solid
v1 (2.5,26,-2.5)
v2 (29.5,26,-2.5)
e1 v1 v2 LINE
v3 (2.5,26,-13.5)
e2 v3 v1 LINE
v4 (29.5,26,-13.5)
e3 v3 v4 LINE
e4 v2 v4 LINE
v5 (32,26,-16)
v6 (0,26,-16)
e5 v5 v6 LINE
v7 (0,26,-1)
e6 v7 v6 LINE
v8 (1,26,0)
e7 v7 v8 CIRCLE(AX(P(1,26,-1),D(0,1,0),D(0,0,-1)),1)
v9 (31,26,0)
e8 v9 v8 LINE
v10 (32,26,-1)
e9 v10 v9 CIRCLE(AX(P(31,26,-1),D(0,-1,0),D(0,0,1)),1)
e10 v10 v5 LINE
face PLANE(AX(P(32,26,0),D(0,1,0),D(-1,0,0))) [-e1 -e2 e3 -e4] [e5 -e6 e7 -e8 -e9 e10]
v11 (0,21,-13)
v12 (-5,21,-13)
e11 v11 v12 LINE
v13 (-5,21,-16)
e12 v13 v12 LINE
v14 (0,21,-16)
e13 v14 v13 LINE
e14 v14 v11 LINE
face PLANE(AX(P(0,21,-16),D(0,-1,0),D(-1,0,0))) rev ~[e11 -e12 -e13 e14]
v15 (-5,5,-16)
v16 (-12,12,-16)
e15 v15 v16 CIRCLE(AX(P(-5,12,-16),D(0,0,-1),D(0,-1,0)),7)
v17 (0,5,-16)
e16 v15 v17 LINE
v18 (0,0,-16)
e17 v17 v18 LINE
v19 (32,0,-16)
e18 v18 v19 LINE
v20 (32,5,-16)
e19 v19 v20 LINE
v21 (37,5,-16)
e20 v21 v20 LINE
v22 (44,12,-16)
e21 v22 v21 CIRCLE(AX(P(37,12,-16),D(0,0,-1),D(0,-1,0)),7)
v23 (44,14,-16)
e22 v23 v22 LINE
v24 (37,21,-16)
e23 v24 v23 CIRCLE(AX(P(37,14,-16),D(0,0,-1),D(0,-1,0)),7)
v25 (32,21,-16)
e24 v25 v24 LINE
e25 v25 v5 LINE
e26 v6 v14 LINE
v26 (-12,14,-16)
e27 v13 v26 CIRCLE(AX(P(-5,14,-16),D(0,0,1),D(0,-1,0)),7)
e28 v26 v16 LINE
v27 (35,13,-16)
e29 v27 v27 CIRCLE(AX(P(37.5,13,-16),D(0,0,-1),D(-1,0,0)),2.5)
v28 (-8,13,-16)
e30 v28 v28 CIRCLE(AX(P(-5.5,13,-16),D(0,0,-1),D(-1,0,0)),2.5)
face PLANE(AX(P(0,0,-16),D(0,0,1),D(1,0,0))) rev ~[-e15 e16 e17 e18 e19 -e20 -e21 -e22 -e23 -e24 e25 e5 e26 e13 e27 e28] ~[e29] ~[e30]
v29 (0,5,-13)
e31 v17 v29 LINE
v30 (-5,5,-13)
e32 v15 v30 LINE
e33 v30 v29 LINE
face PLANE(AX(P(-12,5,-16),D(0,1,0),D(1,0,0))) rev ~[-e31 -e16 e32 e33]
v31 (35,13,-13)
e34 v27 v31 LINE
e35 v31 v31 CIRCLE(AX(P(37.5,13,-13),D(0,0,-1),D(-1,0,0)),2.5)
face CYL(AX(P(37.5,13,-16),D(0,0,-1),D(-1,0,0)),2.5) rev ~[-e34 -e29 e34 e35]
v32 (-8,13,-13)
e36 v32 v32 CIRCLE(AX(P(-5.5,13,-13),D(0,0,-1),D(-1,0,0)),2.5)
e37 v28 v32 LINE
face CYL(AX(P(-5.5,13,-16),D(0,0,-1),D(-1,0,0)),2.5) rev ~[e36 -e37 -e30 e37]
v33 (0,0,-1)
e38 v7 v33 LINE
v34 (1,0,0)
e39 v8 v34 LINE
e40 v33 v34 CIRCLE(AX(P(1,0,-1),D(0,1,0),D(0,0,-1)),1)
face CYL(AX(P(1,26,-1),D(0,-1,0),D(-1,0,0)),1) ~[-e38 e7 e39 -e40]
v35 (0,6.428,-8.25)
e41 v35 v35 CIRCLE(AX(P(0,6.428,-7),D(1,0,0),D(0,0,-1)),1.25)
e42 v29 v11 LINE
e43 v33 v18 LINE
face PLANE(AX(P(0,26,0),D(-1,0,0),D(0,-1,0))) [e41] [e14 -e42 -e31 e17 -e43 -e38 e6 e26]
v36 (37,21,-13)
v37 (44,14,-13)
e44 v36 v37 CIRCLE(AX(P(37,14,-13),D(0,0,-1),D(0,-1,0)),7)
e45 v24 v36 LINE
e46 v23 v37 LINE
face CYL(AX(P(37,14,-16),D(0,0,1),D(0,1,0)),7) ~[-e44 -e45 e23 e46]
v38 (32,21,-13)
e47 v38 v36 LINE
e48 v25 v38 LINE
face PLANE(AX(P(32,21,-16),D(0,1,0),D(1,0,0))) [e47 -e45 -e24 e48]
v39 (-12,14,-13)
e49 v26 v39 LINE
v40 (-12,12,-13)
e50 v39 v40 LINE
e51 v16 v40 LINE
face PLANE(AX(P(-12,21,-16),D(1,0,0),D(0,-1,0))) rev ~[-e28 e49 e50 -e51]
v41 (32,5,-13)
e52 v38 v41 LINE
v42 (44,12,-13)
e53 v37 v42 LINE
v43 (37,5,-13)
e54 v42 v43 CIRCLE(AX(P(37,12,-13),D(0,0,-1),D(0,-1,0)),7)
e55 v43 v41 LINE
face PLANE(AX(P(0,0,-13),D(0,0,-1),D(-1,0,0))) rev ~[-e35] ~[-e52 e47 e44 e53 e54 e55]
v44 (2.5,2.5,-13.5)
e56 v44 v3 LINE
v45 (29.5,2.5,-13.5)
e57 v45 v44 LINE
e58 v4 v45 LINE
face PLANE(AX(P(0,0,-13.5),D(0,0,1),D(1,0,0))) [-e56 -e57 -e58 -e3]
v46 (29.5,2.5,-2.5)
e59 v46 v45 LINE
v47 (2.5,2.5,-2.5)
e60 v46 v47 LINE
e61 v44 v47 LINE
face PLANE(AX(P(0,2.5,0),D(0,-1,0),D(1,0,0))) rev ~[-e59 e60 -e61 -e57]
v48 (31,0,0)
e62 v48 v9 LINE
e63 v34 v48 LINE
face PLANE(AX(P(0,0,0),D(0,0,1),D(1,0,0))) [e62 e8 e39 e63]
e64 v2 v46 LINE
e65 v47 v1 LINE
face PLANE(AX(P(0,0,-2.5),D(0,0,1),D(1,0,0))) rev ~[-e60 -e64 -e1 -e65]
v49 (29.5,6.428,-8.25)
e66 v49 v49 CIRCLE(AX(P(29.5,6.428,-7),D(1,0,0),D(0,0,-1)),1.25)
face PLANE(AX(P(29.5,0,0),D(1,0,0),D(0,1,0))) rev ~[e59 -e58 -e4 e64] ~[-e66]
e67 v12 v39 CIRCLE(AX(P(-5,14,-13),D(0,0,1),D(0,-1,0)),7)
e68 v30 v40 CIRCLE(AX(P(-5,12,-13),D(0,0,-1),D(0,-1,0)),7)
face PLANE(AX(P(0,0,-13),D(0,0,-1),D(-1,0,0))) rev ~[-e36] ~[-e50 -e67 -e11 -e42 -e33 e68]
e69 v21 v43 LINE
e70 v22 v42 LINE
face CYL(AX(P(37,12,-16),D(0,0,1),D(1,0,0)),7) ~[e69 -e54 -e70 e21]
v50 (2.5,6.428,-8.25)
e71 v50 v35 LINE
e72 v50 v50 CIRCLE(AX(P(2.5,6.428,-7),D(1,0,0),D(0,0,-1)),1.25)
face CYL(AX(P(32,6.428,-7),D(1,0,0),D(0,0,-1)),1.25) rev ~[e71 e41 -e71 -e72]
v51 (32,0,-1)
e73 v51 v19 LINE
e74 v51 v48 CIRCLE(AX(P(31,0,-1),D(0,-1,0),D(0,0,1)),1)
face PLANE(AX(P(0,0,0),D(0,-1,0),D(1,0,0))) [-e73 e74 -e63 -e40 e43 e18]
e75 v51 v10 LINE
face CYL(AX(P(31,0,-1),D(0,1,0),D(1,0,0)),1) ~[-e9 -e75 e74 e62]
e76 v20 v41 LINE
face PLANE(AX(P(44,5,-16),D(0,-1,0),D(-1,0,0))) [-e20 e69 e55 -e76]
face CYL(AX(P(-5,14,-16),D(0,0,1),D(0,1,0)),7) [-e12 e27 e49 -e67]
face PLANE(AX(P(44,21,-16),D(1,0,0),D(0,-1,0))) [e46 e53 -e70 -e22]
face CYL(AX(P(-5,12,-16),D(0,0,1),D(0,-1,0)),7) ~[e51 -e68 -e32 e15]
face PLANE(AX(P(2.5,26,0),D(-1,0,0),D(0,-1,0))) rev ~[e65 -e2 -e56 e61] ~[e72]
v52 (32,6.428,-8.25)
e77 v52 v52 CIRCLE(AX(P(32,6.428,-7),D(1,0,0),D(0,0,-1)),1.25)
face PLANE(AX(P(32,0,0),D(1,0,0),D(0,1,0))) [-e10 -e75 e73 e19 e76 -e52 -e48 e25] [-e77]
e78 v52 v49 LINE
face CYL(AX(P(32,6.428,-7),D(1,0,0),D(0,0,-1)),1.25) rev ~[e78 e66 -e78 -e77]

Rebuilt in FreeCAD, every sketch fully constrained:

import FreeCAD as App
import Part
import Sketcher
from FreeCAD import Vector


def edges_at(feature, points):
    """Names of the edges that pass closest to the given points."""
    edges = feature.Shape.Edges
    near = lambda p: min(range(len(edges)), key=lambda i: edges[i].distToShape(Part.Vertex(*p))[0])
    return sorted({f"Edge{near(p) + 1}" for p in points})


def faces_at(feature, points):
    """Names of the faces that lie closest to the given points."""
    faces = feature.Shape.Faces
    near = lambda p: min(range(len(faces)), key=lambda i: faces[i].distToShape(Part.Vertex(*p))[0])
    return sorted({f"Face{near(p) + 1}" for p in points})

doc = App.newDocument("Part")
body = doc.addObject("PartDesign::Body", "Body")

# Sketch on XY plane
sketch1 = body.newObject("Sketcher::SketchObject", "Sketch")
sketch1.AttachmentSupport = (doc.getObject("XY_Plane"), [""])
sketch1.MapMode = "FlatFace"
sketch1.addGeometry([
    Part.LineSegment(Vector(0, 26, 0), Vector(0, 0, 0)),
    Part.LineSegment(Vector(0, 0, 0), Vector(32, 0, 0)),
    Part.LineSegment(Vector(32, 0, 0), Vector(32, 26, 0)),
    Part.LineSegment(Vector(32, 26, 0), Vector(0, 26, 0)),
], False)
sketch1.addConstraint([
    Sketcher.Constraint("Coincident", 0, 2, 1, 1),
    Sketcher.Constraint("Coincident", 1, 2, 2, 1),
    Sketcher.Constraint("Coincident", 2, 2, 3, 1),
    Sketcher.Constraint("Coincident", 3, 2, 0, 1),
    Sketcher.Constraint("Vertical", 0),
    Sketcher.Constraint("Horizontal", 1),
    Sketcher.Constraint("Vertical", 2),
    Sketcher.Constraint("Horizontal", 3),
    Sketcher.Constraint("Coincident", 0, 2, -1, 1),
    Sketcher.Constraint("DistanceX", 1, 1, 1, 2, 32.0),
    Sketcher.Constraint("DistanceY", 0, 2, 0, 1, 26.0),
])
pad1 = body.newObject("PartDesign::Pad", "Pad")
pad1.Profile = sketch1
pad1.Length = 16
pad1.Reversed = True
doc.recompute()

thickness = body.newObject("PartDesign::Thickness", "Thickness")
thickness.Base = (pad1, faces_at(pad1, [(21.333, 26, -10.667)]))
thickness.Value = 2.5
thickness.Reversed = True
thickness.Join = "Intersection"

# Sketch on XY plane
sketch2 = body.newObject("Sketcher::SketchObject", "Sketch001")
sketch2.AttachmentSupport = (doc.getObject("XY_Plane"), [""])
sketch2.MapMode = "FlatFace"
sketch2.AttachmentOffset = App.Placement(Vector(0, 0, -16), App.Rotation())
sketch2.addGeometry([
    Part.LineSegment(Vector(0, 21, 0), Vector(0, 5, 0)),  # 0
    Part.LineSegment(Vector(0, 5, 0), Vector(-12, 5, 0)),  # 1
    Part.LineSegment(Vector(-12, 5, 0), Vector(-12, 21, 0)),  # 2
    Part.LineSegment(Vector(-12, 21, 0), Vector(0, 21, 0)),  # 3
    Part.LineSegment(Vector(44, 5, 0), Vector(32, 5, 0)),  # 4
    Part.LineSegment(Vector(32, 5, 0), Vector(32, 21, 0)),  # 5
    Part.LineSegment(Vector(32, 21, 0), Vector(44, 21, 0)),  # 6
    Part.LineSegment(Vector(44, 21, 0), Vector(44, 5, 0)),  # 7
], False)
sketch2.addConstraint([
    Sketcher.Constraint("Coincident", 0, 2, 1, 1),
    Sketcher.Constraint("Coincident", 1, 2, 2, 1),
    Sketcher.Constraint("Coincident", 2, 2, 3, 1),
    Sketcher.Constraint("Coincident", 3, 2, 0, 1),
    Sketcher.Constraint("Coincident", 4, 2, 5, 1),
    Sketcher.Constraint("Coincident", 5, 2, 6, 1),
    Sketcher.Constraint("Coincident", 6, 2, 7, 1),
    Sketcher.Constraint("Coincident", 7, 2, 4, 1),
    Sketcher.Constraint("Vertical", 0),
    Sketcher.Constraint("Horizontal", 1),
    Sketcher.Constraint("Vertical", 2),
    Sketcher.Constraint("Horizontal", 3),
    Sketcher.Constraint("Horizontal", 4),
    Sketcher.Constraint("Vertical", 5),
    Sketcher.Constraint("Horizontal", 6),
    Sketcher.Constraint("Vertical", 7),
    Sketcher.Constraint("PointOnObject", 0, 2, -2),
    Sketcher.Constraint("Horizontal", 1, 2, 4, 2),
    Sketcher.Constraint("Horizontal", 3, 2, 5, 2),
    Sketcher.Constraint("Equal", 3, 4),
    Sketcher.Constraint("DistanceX", 1, 2, 1, 1, 12.0),
    Sketcher.Constraint("DistanceY", 0, 2, 0, 1, 16.0),
    Sketcher.Constraint("DistanceY", -1, 1, 0, 2, 5.0),
    Sketcher.Constraint("DistanceX", -1, 1, 4, 2, 32.0),
])
pad2 = body.newObject("PartDesign::Pad", "Pad001")
pad2.Profile = sketch2
pad2.Length = 3

# Sketch on XY plane
sketch3 = body.newObject("Sketcher::SketchObject", "Sketch002")
sketch3.AttachmentSupport = (doc.getObject("XY_Plane"), [""])
sketch3.MapMode = "FlatFace"
sketch3.AttachmentOffset = App.Placement(Vector(0, 0, -16), App.Rotation())
sketch3.addGeometry([
    Part.Circle(Vector(-5.5, 13, 0), Vector(0, 0, 1), 2.5),
    Part.Circle(Vector(37.5, 13, 0), Vector(0, 0, 1), 2.5),
], False)
sketch3.addConstraint([
    Sketcher.Constraint("Equal", 0, 1),
    Sketcher.Constraint("Horizontal", 0, 3, 1, 3),
    Sketcher.Constraint("Diameter", 0, 5.0),
    Sketcher.Constraint("DistanceY", -1, 1, 0, 3, 13.0),
    Sketcher.Constraint("DistanceX", 0, 3, 1, 3, 43.0),
    Sketcher.Constraint("DistanceX", 0, 3, -1, 1, 5.5),
])
pocket1 = body.newObject("PartDesign::Pocket", "Pocket")
pocket1.Profile = sketch3
pocket1.Length = 3
pocket1.Reversed = True
doc.recompute()

fillet = body.newObject("PartDesign::Fillet", "Fillet")
fillet.Base = (pocket1, edges_at(pocket1, [
    (44, 21, -14.5),
    (44, 5, -14.5),
    (-12, 5, -14.5),
    (-12, 21, -14.5),
]))
fillet.Radius = 7
doc.recompute()

fillet2 = body.newObject("PartDesign::Fillet", "Fillet001")
fillet2.Base = (fillet, edges_at(fillet, [(32, 13, 0), (0, 13, 0)]))
fillet2.Radius = 1

# Sketch on YZ plane
sketch4 = body.newObject("Sketcher::SketchObject", "Sketch003")
sketch4.AttachmentSupport = (doc.getObject("YZ_Plane"), [""])
sketch4.MapMode = "FlatFace"
sketch4.AttachmentOffset = App.Placement(Vector(0, 0, 32), App.Rotation())
sketch4.addGeometry(Part.Circle(Vector(6.4, -7, 0), Vector(0, 0, 1), 1.2), False)
sketch4.addConstraint([
    Sketcher.Constraint("Diameter", 0, 2.5),
    Sketcher.Constraint("DistanceY", 0, 3, -1, 1, 7.0),
    Sketcher.Constraint("DistanceX", -1, 1, 0, 3, 6.428),
])
pocket2 = body.newObject("PartDesign::Pocket", "Pocket001")
pocket2.Profile = sketch4
pocket2.Length = 36.75

doc.recompute()
